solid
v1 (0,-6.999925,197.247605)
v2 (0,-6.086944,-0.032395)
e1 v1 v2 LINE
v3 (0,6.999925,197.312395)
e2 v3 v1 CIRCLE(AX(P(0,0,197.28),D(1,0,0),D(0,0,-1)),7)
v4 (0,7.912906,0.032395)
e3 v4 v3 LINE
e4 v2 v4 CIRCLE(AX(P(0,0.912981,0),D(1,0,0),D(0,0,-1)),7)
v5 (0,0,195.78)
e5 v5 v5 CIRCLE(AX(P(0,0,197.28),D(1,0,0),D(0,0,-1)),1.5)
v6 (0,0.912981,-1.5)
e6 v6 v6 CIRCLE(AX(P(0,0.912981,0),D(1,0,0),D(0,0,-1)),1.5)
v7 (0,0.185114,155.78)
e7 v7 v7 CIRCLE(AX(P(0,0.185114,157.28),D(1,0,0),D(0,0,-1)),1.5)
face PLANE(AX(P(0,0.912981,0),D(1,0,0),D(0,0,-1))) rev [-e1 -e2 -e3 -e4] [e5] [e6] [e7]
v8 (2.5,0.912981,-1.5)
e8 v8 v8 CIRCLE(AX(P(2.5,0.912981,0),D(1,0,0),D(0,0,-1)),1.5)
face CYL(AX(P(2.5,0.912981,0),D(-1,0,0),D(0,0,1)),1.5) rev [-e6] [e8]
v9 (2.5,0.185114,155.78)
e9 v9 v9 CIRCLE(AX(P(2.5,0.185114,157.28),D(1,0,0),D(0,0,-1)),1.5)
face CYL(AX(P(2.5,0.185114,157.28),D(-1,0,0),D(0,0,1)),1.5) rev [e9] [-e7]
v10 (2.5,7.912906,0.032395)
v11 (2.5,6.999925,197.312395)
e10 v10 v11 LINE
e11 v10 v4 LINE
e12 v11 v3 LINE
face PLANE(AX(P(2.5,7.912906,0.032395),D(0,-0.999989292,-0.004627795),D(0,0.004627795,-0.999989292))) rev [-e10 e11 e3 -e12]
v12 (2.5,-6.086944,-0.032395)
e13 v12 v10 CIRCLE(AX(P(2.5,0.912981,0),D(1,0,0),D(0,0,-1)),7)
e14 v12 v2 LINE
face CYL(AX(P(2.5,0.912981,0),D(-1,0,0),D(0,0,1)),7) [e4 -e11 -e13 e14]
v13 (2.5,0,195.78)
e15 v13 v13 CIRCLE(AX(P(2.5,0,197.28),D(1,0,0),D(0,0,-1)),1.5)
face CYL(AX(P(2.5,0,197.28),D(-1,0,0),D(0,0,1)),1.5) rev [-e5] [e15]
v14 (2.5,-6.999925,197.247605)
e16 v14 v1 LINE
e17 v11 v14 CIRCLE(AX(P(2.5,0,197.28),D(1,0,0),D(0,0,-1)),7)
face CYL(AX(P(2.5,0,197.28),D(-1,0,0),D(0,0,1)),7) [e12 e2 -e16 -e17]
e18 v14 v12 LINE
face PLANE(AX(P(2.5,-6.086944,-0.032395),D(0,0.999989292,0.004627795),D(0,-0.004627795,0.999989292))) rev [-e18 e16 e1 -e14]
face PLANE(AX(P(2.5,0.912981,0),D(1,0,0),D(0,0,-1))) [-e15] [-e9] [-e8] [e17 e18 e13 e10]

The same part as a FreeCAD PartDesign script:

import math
import FreeCAD as App
import Part
import Sketcher
Q = App.Units.Quantity

doc = App.newDocument("Part")
body = doc.addObject("PartDesign::Body", "Body")

# Sketch on YZ plane
sketch1 = doc.addObject("Sketcher::SketchObject", "Sketch")
body.addObject(sketch1)
sketch1.AttachmentSupport = (doc.YZ_Plane, [""])
sketch1.MapMode = "FlatFace"
sketch1.addGeometry(Part.LineSegment(App.Vector(-6.999925, 197.247605, 0), App.Vector(-6.086944, -0.032395, 0)), False)
sketch1.addGeometry(Part.ArcOfCircle(Part.Circle(App.Vector(0.912981, 0, 0), App.Vector(0, 0, 1), 7), math.radians(-179.734846), math.radians(0.265154)), False)
sketch1.addGeometry(Part.LineSegment(App.Vector(7.912906, 0.032395, 0), App.Vector(6.999925, 197.312395, 0)), False)
sketch1.addGeometry(Part.ArcOfCircle(Part.Circle(App.Vector(0, 197.28, 0), App.Vector(0, 0, 1), 7), math.radians(0.265154), math.radians(180.265154)), False)
sketch1.addGeometry(Part.Circle(App.Vector(0.185114, 157.28, 0), App.Vector(0, 0, 1), 1.5), False)
sketch1.addGeometry(Part.Circle(App.Vector(0, 197.28, 0), App.Vector(0, 0, 1), 1.5), False)
sketch1.addGeometry(Part.Circle(App.Vector(0.912981, 0, 0), App.Vector(0, 0, 1), 1.5), False)
sketch1.addConstraint(Sketcher.Constraint("Tangent", 0, 2, 1, 1))
sketch1.addConstraint(Sketcher.Constraint("Tangent", 1, 2, 2, 1))
sketch1.addConstraint(Sketcher.Constraint("Tangent", 2, 2, 3, 1))
sketch1.addConstraint(Sketcher.Constraint("Tangent", 3, 2, 0, 1))
sketch1.addConstraint(Sketcher.Constraint("Coincident", 5, 3, 3, 3))
sketch1.addConstraint(Sketcher.Constraint("Coincident", 6, 3, 1, 3))
sketch1.addConstraint(Sketcher.Constraint("Equal", 1, 3))
sketch1.addConstraint(Sketcher.Constraint("Equal", 4, 5))
sketch1.addConstraint(Sketcher.Constraint("Equal", 5, 6))
sketch1.addConstraint(Sketcher.Constraint("PointOnObject", 1, 3, -1))
sketch1.addConstraint(Sketcher.Constraint("PointOnObject", 3, 3, -2))
sketch1.addConstraint(Sketcher.Constraint("Diameter", 4, Q("3 mm")))
sketch1.addConstraint(Sketcher.Constraint("Radius", 1, Q("7 mm")))
sketch1.addConstraint(Sketcher.Constraint("DistanceY", 4, 3, 3, 3, Q("40 mm")))
sketch1.addConstraint(Sketcher.Constraint("DistanceY", -1, 1, 3, 3, Q("197.28 mm")))
sketch1.addConstraint(Sketcher.Constraint("DistanceX", -1, 1, 1, 3, Q("0.912981 mm")))
sketch1.addConstraint(Sketcher.Constraint("DistanceX", 4, 3, 2, 2, Q("6.814811 mm")))
pad1 = doc.addObject("PartDesign::Pad", "Pad")
body.addObject(pad1)
pad1.Profile = sketch1
pad1.Length = 2.5

doc.recompute()
